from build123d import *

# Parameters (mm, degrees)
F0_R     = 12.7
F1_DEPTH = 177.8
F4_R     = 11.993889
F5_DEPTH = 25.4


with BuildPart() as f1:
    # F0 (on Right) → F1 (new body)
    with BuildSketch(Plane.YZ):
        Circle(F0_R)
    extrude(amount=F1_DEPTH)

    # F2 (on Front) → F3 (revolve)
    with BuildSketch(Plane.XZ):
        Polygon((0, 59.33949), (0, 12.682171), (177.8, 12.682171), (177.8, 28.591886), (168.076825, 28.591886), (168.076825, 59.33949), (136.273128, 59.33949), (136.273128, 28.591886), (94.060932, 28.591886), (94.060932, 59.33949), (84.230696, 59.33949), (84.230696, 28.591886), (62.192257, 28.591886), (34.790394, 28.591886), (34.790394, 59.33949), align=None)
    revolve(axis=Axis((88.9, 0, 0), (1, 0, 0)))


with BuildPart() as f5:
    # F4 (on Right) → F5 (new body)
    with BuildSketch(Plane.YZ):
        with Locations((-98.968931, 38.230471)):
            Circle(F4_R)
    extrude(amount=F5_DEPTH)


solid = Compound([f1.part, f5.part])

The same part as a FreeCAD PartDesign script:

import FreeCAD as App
import Part
import Sketcher

V = App.Vector
Q = App.Units.Quantity

doc = App.newDocument("Part")
body = doc.addObject("PartDesign::Body", "Body")

# Sketch on YZ plane
sketch1 = body.newObject("Sketcher::SketchObject", "Sketch")
sketch1.AttachmentSupport = (doc.getObject("YZ_Plane"), [""])
sketch1.MapMode = "FlatFace"
sketch1.addGeometry(Part.Circle(V(0, 0, 0), V(0, 0, 1), 13), False)
sketch1.addConstraint([
    Sketcher.Constraint("Coincident", 0, 3, -1, 1),
    Sketcher.Constraint("Diameter", 0, Q("1 in")),
])
pad1 = body.newObject("PartDesign::Pad", "Pad")
pad1.Profile = sketch1
pad1.Length = Q("7 in")

# Sketch on XZ plane
sketch2 = body.newObject("Sketcher::SketchObject", "Sketch001")
sketch2.AttachmentSupport = (doc.getObject("XZ_Plane"), [""])
sketch2.MapMode = "FlatFace"
sketch2.addGeometry([
    Part.LineSegment(V(0, 59, 0), V(0, 13, 0)),  # 0
    Part.LineSegment(V(0, 13, 0), V(178, 13, 0)),  # 1
    Part.LineSegment(V(178, 13, 0), V(178, 29, 0)),  # 2
    Part.LineSegment(V(178, 29, 0), V(168, 29, 0)),  # 3
    Part.LineSegment(V(168, 29, 0), V(168, 59, 0)),  # 4
    Part.LineSegment(V(168, 59, 0), V(136, 59, 0)),  # 5
    Part.LineSegment(V(136, 59, 0), V(136, 29, 0)),  # 6
    Part.LineSegment(V(136, 29, 0), V(94, 29, 0)),  # 7
    Part.LineSegment(V(94, 29, 0), V(94, 59, 0)),  # 8
    Part.LineSegment(V(94, 59, 0), V(84, 59, 0)),  # 9
    Part.LineSegment(V(84, 59, 0), V(84, 29, 0)),  # 10
    Part.LineSegment(V(84, 29, 0), V(35, 29, 0)),  # 11
    Part.LineSegment(V(35, 29, 0), V(35, 59, 0)),  # 12
    Part.LineSegment(V(35, 59, 0), V(0, 59, 0)),  # 13
], False)
sketch2.addConstraint([
    Sketcher.Constraint("Coincident", 0, 2, 1, 1),
    Sketcher.Constraint("Coincident", 1, 2, 2, 1),
    Sketcher.Constraint("Coincident", 2, 2, 3, 1),
    Sketcher.Constraint("Coincident", 3, 2, 4, 1),
    Sketcher.Constraint("Coincident", 4, 2, 5, 1),
    Sketcher.Constraint("Coincident", 5, 2, 6, 1),
    Sketcher.Constraint("Coincident", 6, 2, 7, 1),
    Sketcher.Constraint("Coincident", 7, 2, 8, 1),
    Sketcher.Constraint("Coincident", 8, 2, 9, 1),
    Sketcher.Constraint("Coincident", 9, 2, 10, 1),
    Sketcher.Constraint("Coincident", 10, 2, 11, 1),
    Sketcher.Constraint("Coincident", 11, 2, 12, 1),
    Sketcher.Constraint("Coincident", 12, 2, 13, 1),
    Sketcher.Constraint("Coincident", 13, 2, 0, 1),
    Sketcher.Constraint("Vertical", 0),
    Sketcher.Constraint("Horizontal", 1),
    Sketcher.Constraint("Vertical", 2),
    Sketcher.Constraint("Horizontal", 3),
    Sketcher.Constraint("Vertical", 4),
    Sketcher.Constraint("Horizontal", 5),
    Sketcher.Constraint("Vertical", 6),
    Sketcher.Constraint("Horizontal", 7),
    Sketcher.Constraint("Vertical", 8),
    Sketcher.Constraint("Horizontal", 9),
    Sketcher.Constraint("Vertical", 10),
    Sketcher.Constraint("Horizontal", 11),
    Sketcher.Constraint("Vertical", 12),
    Sketcher.Constraint("Horizontal", 13),
    Sketcher.Constraint("PointOnObject", 0, 2, -2),
    Sketcher.Constraint("Horizontal", 3, 2, 6, 2),
    Sketcher.Constraint("Horizontal", 5, 2, 8, 2),
    Sketcher.Constraint("Horizontal", 7, 2, 10, 2),
    Sketcher.Constraint("Horizontal", 9, 2, 12, 2),
    Sketcher.Constraint("DistanceX", 1, 1, 1, 2, Q("7 in")),
    Sketcher.Constraint("DistanceX", 11, 2, 11, 1, 49.440302),
    Sketcher.Constraint("DistanceY", 0, 2, 0, 1, 46.657319),
    Sketcher.Constraint("DistanceX", 3, 2, 3, 1, 9.723175),
    Sketcher.Constraint("DistanceX", 5, 2, 5, 1, 31.803697),
    Sketcher.Constraint("DistanceX", 7, 2, 7, 1, 42.212196),
    Sketcher.Constraint("DistanceX", 9, 2, 9, 1, 9.830236),
    Sketcher.Constraint("DistanceY", 2, 1, 2, 2, 15.909715),
    Sketcher.Constraint("DistanceY", -1, 1, 0, 2, 12.682171),
])
revolution = body.newObject("PartDesign::Revolution", "Revolution")
revolution.Profile = sketch2
revolution.ReferenceAxis = (sketch2, ["H_Axis"])
revolution.Angle = 360
body2 = doc.addObject("PartDesign::Body", "Body001")

# Sketch on YZ plane
sketch3 = body2.newObject("Sketcher::SketchObject", "Sketch002")
sketch3.AttachmentSupport = (doc.getObject("YZ_Plane001"), [""])
sketch3.MapMode = "FlatFace"
sketch3.addGeometry(Part.Circle(V(-99, 38, 0), V(0, 0, 1), 12), False)
sketch3.addConstraint([
    Sketcher.Constraint("Diameter", 0, 23.987778),
    Sketcher.Constraint("DistanceX", 0, 3, -1, 1, 98.968931),
    Sketcher.Constraint("DistanceY", -1, 1, 0, 3, 38.230471),
])
pad2 = body2.newObject("PartDesign::Pad", "Pad001")
pad2.Profile = sketch3
pad2.Length = Q("1 in")

doc.recompute()
